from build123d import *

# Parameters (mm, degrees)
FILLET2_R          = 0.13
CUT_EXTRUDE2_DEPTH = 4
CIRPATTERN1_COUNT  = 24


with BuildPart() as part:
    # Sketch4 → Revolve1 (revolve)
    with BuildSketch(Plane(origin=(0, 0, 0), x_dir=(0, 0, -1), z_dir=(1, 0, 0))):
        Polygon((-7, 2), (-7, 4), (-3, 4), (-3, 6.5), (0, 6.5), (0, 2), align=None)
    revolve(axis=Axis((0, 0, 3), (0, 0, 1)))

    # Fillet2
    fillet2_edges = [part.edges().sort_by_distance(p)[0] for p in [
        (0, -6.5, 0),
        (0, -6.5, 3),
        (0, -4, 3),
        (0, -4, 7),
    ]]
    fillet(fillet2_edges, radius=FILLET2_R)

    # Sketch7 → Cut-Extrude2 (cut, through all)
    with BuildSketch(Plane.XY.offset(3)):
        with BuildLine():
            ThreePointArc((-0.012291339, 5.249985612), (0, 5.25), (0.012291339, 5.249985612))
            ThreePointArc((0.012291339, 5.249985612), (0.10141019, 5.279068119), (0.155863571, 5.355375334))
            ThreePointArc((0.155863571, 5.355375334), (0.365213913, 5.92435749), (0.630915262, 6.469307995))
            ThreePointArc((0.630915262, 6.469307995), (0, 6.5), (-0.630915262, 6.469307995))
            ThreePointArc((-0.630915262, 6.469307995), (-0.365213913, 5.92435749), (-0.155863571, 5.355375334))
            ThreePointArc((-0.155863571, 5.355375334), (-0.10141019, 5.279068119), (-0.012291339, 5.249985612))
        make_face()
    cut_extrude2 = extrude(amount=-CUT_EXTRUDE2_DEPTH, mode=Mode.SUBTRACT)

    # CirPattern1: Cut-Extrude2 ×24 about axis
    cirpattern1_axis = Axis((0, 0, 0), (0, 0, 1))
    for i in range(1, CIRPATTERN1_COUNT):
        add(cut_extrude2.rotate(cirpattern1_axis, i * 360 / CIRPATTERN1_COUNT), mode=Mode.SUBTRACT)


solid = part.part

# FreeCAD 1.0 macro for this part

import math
import FreeCAD as App
import Part
import Sketcher
Q = App.Units.Quantity


def edges_at(feature, points):
    """Names of the edges that pass closest to the given points."""
    edges = feature.Shape.Edges
    near = lambda p: min(range(len(edges)), key=lambda i: edges[i].distToShape(Part.Vertex(*p))[0])
    return sorted({f"Edge{near(p) + 1}" for p in points})


def add_polygon(sketch, points):
    """Adds a closed chain of lines whose ends are joined by coincident constraints."""
    first, n = sketch.GeometryCount, len(points)
    for a, b in zip(points, points[1:] + points[:1]):
        sketch.addGeometry(Part.LineSegment(App.Vector(*a, 0), App.Vector(*b, 0)), False)
    for i in range(n):
        sketch.addConstraint(Sketcher.Constraint("Coincident", first + i, 2, first + (i + 1) % n, 1))

doc = App.newDocument("Part")
body = doc.addObject("PartDesign::Body", "Body")

sketch1 = body.newObject("Sketcher::SketchObject", "Sketch")
sketch1.AttachmentSupport = (doc.getObject("YZ_Plane"), [""])
sketch1.MapMode = "FlatFace"
add_polygon(sketch1, [(4, 7), (2, 7), (2, 0), (6.5, 0), (6.5, 3), (4, 3)])
sketch1.addConstraint([
    Sketcher.Constraint("Horizontal", 0),
    Sketcher.Constraint("Vertical", 1),
    Sketcher.Constraint("Horizontal", 2),
    Sketcher.Constraint("Vertical", 3),
    Sketcher.Constraint("Horizontal", 4),
    Sketcher.Constraint("Vertical", 5),
    Sketcher.Constraint("PointOnObject", 1, 2, -1),
    Sketcher.Constraint("DistanceX", 0, 2, 0, 1, Q("2 mm")),
    Sketcher.Constraint("DistanceY", 1, 2, 1, 1, Q("7 mm")),
    Sketcher.Constraint("DistanceY", 3, 1, 3, 2, Q("3 mm")),
    Sketcher.Constraint("DistanceX", 2, 1, 2, 2, Q("4.5 mm")),
    Sketcher.Constraint("DistanceX", -1, 1, 0, 2, Q("2 mm")),
])
revolution = body.newObject("PartDesign::Revolution", "Revolution")
revolution.Profile = sketch1
revolution.ReferenceAxis = (sketch1, ["V_Axis"])
revolution.Angle = 360
doc.recompute()

fillet = body.newObject("PartDesign::Fillet", "Fillet")
fillet.Base = (revolution, edges_at(revolution, [
    (0, -6.5, 0),
    (0, -6.5, 3),
    (0, -4, 3),
    (0, -4, 7),
]))
fillet.Radius = 0.13

sketch2 = body.newObject("Sketcher::SketchObject", "Sketch001")
sketch2.AttachmentSupport = (doc.getObject("XY_Plane"), [""])
sketch2.MapMode = "FlatFace"
sketch2.AttachmentOffset = App.Placement(App.Vector(0, 0, 3), App.Rotation())
sketch2.addGeometry([
    Part.ArcOfCircle(Part.Circle(App.Vector(0, 0, 0), App.Vector(0, 0, 1), 5.25), math.radians(89.87), math.radians(90.13)),
    Part.ArcOfCircle(Part.Circle(App.Vector(0.013, 5.4, 0), App.Vector(0, 0, 1), 0.15), math.radians(-90), math.radians(-17)),
    Part.ArcOfCircle(Part.Circle(App.Vector(5.884, 3.571, 0), App.Vector(0, 0, 1), 6), math.radians(151.11), math.radians(162.7)),
    Part.ArcOfCircle(Part.Circle(App.Vector(0, 0, 0), App.Vector(0, 0, 1), 6.5), math.radians(84.43), math.radians(95.57)),
    Part.ArcOfCircle(Part.Circle(App.Vector(-5.884, 3.571, 0), App.Vector(0, 0, 1), 6), math.radians(17.3), math.radians(28.89)),
    Part.ArcOfCircle(Part.Circle(App.Vector(-0.013, 5.4, 0), App.Vector(0, 0, 1), 0.15), math.radians(-163), math.radians(-90)),
], False)
sketch2.addConstraint([
    Sketcher.Constraint("Tangent", 0, 1, 1, 1),
    Sketcher.Constraint("Tangent", 1, 2, 2, 2),
    Sketcher.Constraint("Coincident", 2, 1, 3, 1),
    Sketcher.Constraint("Coincident", 3, 2, 4, 2),
    Sketcher.Constraint("Tangent", 4, 1, 5, 1),
    Sketcher.Constraint("Tangent", 5, 2, 0, 2),
    Sketcher.Constraint("Coincident", 3, 3, -1, 1),
    Sketcher.Constraint("Equal", 2, 4),
    Sketcher.Constraint("Equal", 1, 5),
    Sketcher.Constraint("Symmetric", 2, 3, 4, 3, -2),
    Sketcher.Constraint("PointOnObject", 0, 3, -2),
    Sketcher.Constraint("Radius", 2, Q("6 mm")),
    Sketcher.Constraint("Radius", 3, Q("6.5 mm")),
    Sketcher.Constraint("Radius", 0, Q("5.250112 mm")),
    Sketcher.Constraint("Radius", 1, Q("0.150011 mm")),
    Sketcher.Constraint("DistanceY", 0, 3, -1, 1, Q("0.000112 mm")),
    Sketcher.Constraint("DistanceX", -1, 1, 0, 1, Q("0.012291 mm")),
    Sketcher.Constraint("DistanceX", 4, 3, 1, 3, Q("5.89693 mm")),
])
pocket1 = body.newObject("PartDesign::Pocket", "Pocket")
pocket1.Profile = sketch2
pocket1.Type = "ThroughAll"
doc.recompute()

polarpattern = body.newObject("PartDesign::PolarPattern", "PolarPattern")
polarpattern.Originals = [pocket1]
polarpattern.Axis = (doc.getObject("Z_Axis"), [""])
polarpattern.Angle = 360
polarpattern.Occurrences = 24
body.Tip = polarpattern

doc.recompute()
